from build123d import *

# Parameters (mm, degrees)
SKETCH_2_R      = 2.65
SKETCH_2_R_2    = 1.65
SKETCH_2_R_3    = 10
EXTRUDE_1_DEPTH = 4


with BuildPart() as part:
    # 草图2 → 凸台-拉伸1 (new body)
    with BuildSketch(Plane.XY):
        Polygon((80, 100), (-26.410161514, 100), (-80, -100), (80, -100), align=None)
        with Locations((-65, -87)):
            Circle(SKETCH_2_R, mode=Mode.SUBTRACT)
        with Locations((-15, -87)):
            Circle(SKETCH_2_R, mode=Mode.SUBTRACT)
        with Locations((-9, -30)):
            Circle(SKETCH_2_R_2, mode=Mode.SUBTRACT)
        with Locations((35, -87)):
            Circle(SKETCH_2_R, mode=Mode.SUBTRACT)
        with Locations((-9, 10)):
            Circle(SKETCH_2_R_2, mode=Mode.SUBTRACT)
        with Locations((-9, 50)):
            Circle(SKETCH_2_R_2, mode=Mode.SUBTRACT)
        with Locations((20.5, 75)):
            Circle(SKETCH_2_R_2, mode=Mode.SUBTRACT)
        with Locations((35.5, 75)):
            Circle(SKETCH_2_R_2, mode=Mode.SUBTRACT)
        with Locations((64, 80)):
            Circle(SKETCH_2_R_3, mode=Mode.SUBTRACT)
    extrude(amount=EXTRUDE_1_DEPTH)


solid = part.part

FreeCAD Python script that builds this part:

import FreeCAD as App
import Part
import Sketcher
from FreeCAD import Vector
Q = App.Units.Quantity

doc = App.newDocument("Part")
body = doc.addObject("PartDesign::Body", "Body")

sketch1 = body.newObject("Sketcher::SketchObject", "Sketch")
sketch1.AttachmentSupport = (doc.getObject("XY_Plane"), [""])
sketch1.MapMode = "FlatFace"
sketch1.addGeometry(Part.LineSegment(Vector(80, 100, 0), Vector(-26.4, 100, 0)), False)
sketch1.addGeometry(Part.LineSegment(Vector(-26.4, 100, 0), Vector(-80, -100, 0)), False)
sketch1.addGeometry(Part.LineSegment(Vector(-80, -100, 0), Vector(80, -100, 0)), False)
sketch1.addGeometry(Part.LineSegment(Vector(80, -100, 0), Vector(80, 100, 0)), False)
sketch1.addGeometry(Part.Circle(Vector(-65, -87, 0), Vector(0, 0, 1), 2.6), False)
sketch1.addGeometry(Part.Circle(Vector(-15, -87, 0), Vector(0, 0, 1), 2.6), False)
sketch1.addGeometry(Part.Circle(Vector(-9, -30, 0), Vector(0, 0, 1), 1.6), False)
sketch1.addGeometry(Part.Circle(Vector(35, -87, 0), Vector(0, 0, 1), 2.6), False)
sketch1.addGeometry(Part.Circle(Vector(-9, 10, 0), Vector(0, 0, 1), 1.6), False)
sketch1.addGeometry(Part.Circle(Vector(-9, 50, 0), Vector(0, 0, 1), 1.6), False)
sketch1.addGeometry(Part.Circle(Vector(20.5, 75, 0), Vector(0, 0, 1), 1.6), False)
sketch1.addGeometry(Part.Circle(Vector(35.5, 75, 0), Vector(0, 0, 1), 1.6), False)
sketch1.addGeometry(Part.Circle(Vector(64, 80, 0), Vector(0, 0, 1), 10), False)
sketch1.addConstraint(Sketcher.Constraint("Coincident", 0, 2, 1, 1))
sketch1.addConstraint(Sketcher.Constraint("Coincident", 1, 2, 2, 1))
sketch1.addConstraint(Sketcher.Constraint("Coincident", 2, 2, 3, 1))
sketch1.addConstraint(Sketcher.Constraint("Coincident", 3, 2, 0, 1))
sketch1.addConstraint(Sketcher.Constraint("Horizontal", 0))
sketch1.addConstraint(Sketcher.Constraint("Horizontal", 2))
sketch1.addConstraint(Sketcher.Constraint("Vertical", 3))
sketch1.addConstraint(Sketcher.Constraint("Equal", 4, 5))
sketch1.addConstraint(Sketcher.Constraint("Equal", 5, 7))
sketch1.addConstraint(Sketcher.Constraint("Equal", 6, 8))
sketch1.addConstraint(Sketcher.Constraint("Equal", 8, 9))
sketch1.addConstraint(Sketcher.Constraint("Equal", 9, 10))
sketch1.addConstraint(Sketcher.Constraint("Equal", 10, 11))
sketch1.addConstraint(Sketcher.Constraint("Symmetric", 1, 2, 3, 2, -1, 1))
sketch1.addConstraint(Sketcher.Constraint("Horizontal", 4, 3, 5, 3))
sketch1.addConstraint(Sketcher.Constraint("Horizontal", 5, 3, 7, 3))
sketch1.addConstraint(Sketcher.Constraint("Horizontal", 10, 3, 11, 3))
sketch1.addConstraint(Sketcher.Constraint("Vertical", 6, 3, 8, 3))
sketch1.addConstraint(Sketcher.Constraint("Vertical", 8, 3, 9, 3))
sketch1.addConstraint(Sketcher.Constraint("Diameter", 12, 20.0))
sketch1.addConstraint(Sketcher.Constraint("Diameter", 4, 5.3))
sketch1.addConstraint(Sketcher.Constraint("Diameter", 6, 3.3))
sketch1.addConstraint(Sketcher.Constraint("DistanceX", 2, 1, 2, 2, 160.0))
sketch1.addConstraint(Sketcher.Constraint("DistanceY", 3, 1, 3, 2, 200.0))
sketch1.addConstraint(Sketcher.Constraint("Angle", 1, Q("-105 deg")))
sketch1.addConstraint(Sketcher.Constraint("DistanceX", 4, 3, -1, 1, 65.0))
sketch1.addConstraint(Sketcher.Constraint("DistanceY", 4, 3, -1, 1, 87.0))
sketch1.addConstraint(Sketcher.Constraint("DistanceX", 5, 3, -1, 1, 15.0))
sketch1.addConstraint(Sketcher.Constraint("DistanceX", 6, 3, -1, 1, 9.0))
sketch1.addConstraint(Sketcher.Constraint("DistanceY", 6, 3, -1, 1, 30.0))
sketch1.addConstraint(Sketcher.Constraint("DistanceX", -1, 1, 7, 3, 35.0))
sketch1.addConstraint(Sketcher.Constraint("DistanceY", -1, 1, 8, 3, 10.0))
sketch1.addConstraint(Sketcher.Constraint("DistanceY", -1, 1, 9, 3, 50.0))
sketch1.addConstraint(Sketcher.Constraint("DistanceY", -1, 1, 10, 3, 75.0))
sketch1.addConstraint(Sketcher.Constraint("DistanceX", -1, 1, 12, 3, 64.0))
sketch1.addConstraint(Sketcher.Constraint("DistanceY", -1, 1, 12, 3, 80.0))
sketch1.addConstraint(Sketcher.Constraint("DistanceX", 10, 3, 11, 3, 15.0))
sketch1.addConstraint(Sketcher.Constraint("DistanceX", -1, 1, 10, 3, 20.5))
pad1 = body.newObject("PartDesign::Pad", "Pad")
pad1.Profile = sketch1
pad1.Length = 4

doc.recompute()
